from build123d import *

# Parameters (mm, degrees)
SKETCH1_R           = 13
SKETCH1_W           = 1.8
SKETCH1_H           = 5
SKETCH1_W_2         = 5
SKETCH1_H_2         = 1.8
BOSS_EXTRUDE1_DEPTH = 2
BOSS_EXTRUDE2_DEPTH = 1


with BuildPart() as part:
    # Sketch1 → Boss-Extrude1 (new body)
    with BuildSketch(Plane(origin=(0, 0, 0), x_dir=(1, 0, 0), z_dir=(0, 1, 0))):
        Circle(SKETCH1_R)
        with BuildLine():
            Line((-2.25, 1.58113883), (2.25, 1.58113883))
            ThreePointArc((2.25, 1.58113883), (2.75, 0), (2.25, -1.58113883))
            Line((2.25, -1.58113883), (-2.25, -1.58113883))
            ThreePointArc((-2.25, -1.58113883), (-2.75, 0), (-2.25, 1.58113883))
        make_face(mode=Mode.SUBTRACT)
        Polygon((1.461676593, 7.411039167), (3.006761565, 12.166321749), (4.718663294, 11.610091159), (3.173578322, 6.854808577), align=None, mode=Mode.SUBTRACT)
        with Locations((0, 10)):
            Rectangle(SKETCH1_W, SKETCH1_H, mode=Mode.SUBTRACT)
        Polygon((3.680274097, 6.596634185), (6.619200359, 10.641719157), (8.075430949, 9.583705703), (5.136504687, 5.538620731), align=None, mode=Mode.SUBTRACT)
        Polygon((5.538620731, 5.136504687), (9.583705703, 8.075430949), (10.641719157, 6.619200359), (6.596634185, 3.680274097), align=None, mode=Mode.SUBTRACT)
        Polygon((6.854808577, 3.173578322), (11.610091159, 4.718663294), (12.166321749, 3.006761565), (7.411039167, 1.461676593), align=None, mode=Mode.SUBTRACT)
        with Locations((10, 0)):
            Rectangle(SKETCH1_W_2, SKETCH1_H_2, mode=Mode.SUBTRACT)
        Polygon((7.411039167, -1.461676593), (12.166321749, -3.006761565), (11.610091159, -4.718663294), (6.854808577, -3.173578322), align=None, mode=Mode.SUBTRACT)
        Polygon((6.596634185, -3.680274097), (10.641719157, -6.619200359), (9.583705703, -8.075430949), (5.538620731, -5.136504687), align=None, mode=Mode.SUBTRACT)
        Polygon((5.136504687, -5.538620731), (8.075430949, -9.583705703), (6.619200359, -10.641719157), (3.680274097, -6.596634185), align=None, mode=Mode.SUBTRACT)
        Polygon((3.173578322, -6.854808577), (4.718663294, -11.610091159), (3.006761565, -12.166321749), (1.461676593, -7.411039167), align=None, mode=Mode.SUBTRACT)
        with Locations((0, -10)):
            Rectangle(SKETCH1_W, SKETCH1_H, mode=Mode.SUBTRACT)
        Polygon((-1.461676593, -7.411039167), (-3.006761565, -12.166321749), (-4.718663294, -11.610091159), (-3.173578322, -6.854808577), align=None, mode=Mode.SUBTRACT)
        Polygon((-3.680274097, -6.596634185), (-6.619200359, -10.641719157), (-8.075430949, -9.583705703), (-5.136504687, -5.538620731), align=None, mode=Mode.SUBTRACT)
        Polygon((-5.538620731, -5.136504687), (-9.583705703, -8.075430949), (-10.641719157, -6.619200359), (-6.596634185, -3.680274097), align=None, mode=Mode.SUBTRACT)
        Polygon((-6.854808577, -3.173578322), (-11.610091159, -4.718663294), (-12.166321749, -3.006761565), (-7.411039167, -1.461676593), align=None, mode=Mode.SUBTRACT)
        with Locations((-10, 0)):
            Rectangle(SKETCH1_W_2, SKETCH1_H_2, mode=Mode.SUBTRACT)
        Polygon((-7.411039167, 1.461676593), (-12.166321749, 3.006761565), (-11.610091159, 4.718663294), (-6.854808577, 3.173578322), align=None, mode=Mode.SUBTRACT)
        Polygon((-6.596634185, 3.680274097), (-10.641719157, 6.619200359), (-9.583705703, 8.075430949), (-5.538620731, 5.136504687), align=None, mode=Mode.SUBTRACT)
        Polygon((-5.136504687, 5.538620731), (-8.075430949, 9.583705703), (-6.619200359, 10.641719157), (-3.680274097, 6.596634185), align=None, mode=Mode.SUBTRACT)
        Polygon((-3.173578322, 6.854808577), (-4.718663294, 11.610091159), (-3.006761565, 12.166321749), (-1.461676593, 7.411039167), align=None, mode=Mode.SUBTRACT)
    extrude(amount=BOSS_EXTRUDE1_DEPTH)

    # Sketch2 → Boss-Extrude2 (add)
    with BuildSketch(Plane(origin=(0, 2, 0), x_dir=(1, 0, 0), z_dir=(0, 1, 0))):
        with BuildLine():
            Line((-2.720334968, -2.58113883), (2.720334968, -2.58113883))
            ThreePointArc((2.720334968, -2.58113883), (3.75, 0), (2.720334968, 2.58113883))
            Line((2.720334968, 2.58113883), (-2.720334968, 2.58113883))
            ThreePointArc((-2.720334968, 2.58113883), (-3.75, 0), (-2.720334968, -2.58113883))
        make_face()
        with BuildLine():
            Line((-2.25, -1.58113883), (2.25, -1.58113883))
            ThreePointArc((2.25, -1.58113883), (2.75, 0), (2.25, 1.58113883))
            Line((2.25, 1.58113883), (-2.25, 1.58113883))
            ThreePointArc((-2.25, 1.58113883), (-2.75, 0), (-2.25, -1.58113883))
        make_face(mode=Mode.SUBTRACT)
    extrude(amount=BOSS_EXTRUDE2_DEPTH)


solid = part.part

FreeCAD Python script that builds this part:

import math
import FreeCAD as App
import Part
import Sketcher
from FreeCAD import Vector
Q = App.Units.Quantity

doc = App.newDocument("Part")
body = doc.addObject("PartDesign::Body", "Body")

sketch1 = doc.addObject("Sketcher::SketchObject", "Sketch")
body.addObject(sketch1)
sketch1.AttachmentSupport = (doc.XZ_Plane, [""])
sketch1.MapMode = "FlatFace"
sketch1.addGeometry([
    Part.Circle(Vector(0, 0, 0), Vector(0, 0, 1), 13),
    Part.LineSegment(Vector(-3.2, 6.9, 0), Vector(-1.5, 7.4, 0)),
    Part.LineSegment(Vector(-1.5, 7.4, 0), Vector(-3, 12.2, 0)),
    Part.LineSegment(Vector(-3, 12.2, 0), Vector(-4.7, 11.6, 0)),
    Part.LineSegment(Vector(-4.7, 11.6, 0), Vector(-3.2, 6.9, 0)),
    Part.LineSegment(Vector(-5.1, 5.5, 0), Vector(-3.7, 6.6, 0)),
    Part.LineSegment(Vector(-3.7, 6.6, 0), Vector(-6.6, 10.6, 0)),
    Part.LineSegment(Vector(-6.6, 10.6, 0), Vector(-8.1, 9.6, 0)),
    Part.LineSegment(Vector(-8.1, 9.6, 0), Vector(-5.1, 5.5, 0)),
    Part.LineSegment(Vector(-6.6, 3.7, 0), Vector(-5.5, 5.1, 0)),
    Part.LineSegment(Vector(-5.5, 5.1, 0), Vector(-9.6, 8.1, 0)),
    Part.LineSegment(Vector(-9.6, 8.1, 0), Vector(-10.6, 6.6, 0)),
    Part.LineSegment(Vector(-10.6, 6.6, 0), Vector(-6.6, 3.7, 0)),
    Part.LineSegment(Vector(-7.4, 1.5, 0), Vector(-6.9, 3.2, 0)),
    Part.LineSegment(Vector(-6.9, 3.2, 0), Vector(-11.6, 4.7, 0)),
    Part.LineSegment(Vector(-11.6, 4.7, 0), Vector(-12.2, 3, 0)),
    Part.LineSegment(Vector(-12.2, 3, 0), Vector(-7.4, 1.5, 0)),
    Part.LineSegment(Vector(0.9, 12.5, 0), Vector(-0.9, 12.5, 0)),
    Part.LineSegment(Vector(-0.9, 12.5, 0), Vector(-0.9, 7.5, 0)),
    Part.LineSegment(Vector(-0.9, 7.5, 0), Vector(0.9, 7.5, 0)),
    Part.LineSegment(Vector(0.9, 7.5, 0), Vector(0.9, 12.5, 0)),
    Part.LineSegment(Vector(1.5, 7.4, 0), Vector(3.2, 6.9, 0)),
    Part.LineSegment(Vector(3.2, 6.9, 0), Vector(4.7, 11.6, 0)),
    Part.LineSegment(Vector(4.7, 11.6, 0), Vector(3, 12.2, 0)),
    Part.LineSegment(Vector(3, 12.2, 0), Vector(1.5, 7.4, 0)),
    Part.LineSegment(Vector(3.7, 6.6, 0), Vector(5.1, 5.5, 0)),
    Part.LineSegment(Vector(5.1, 5.5, 0), Vector(8.1, 9.6, 0)),
    Part.LineSegment(Vector(8.1, 9.6, 0), Vector(6.6, 10.6, 0)),
    Part.LineSegment(Vector(6.6, 10.6, 0), Vector(3.7, 6.6, 0)),
    Part.LineSegment(Vector(5.5, 5.1, 0), Vector(6.6, 3.7, 0)),
    Part.LineSegment(Vector(6.6, 3.7, 0), Vector(10.6, 6.6, 0)),
    Part.LineSegment(Vector(10.6, 6.6, 0), Vector(9.6, 8.1, 0)),
    Part.LineSegment(Vector(9.6, 8.1, 0), Vector(5.5, 5.1, 0)),
    Part.LineSegment(Vector(6.9, 3.2, 0), Vector(7.4, 1.5, 0)),
    Part.LineSegment(Vector(7.4, 1.5, 0), Vector(12.2, 3, 0)),
    Part.LineSegment(Vector(12.2, 3, 0), Vector(11.6, 4.7, 0)),
    Part.LineSegment(Vector(11.6, 4.7, 0), Vector(6.9, 3.2, 0)),
    Part.LineSegment(Vector(-7.5, 0.9, 0), Vector(-12.5, 0.9, 0)),
    Part.LineSegment(Vector(-12.5, 0.9, 0), Vector(-12.5, -0.9, 0)),
    Part.LineSegment(Vector(-12.5, -0.9, 0), Vector(-7.5, -0.9, 0)),
    Part.LineSegment(Vector(-7.5, -0.9, 0), Vector(-7.5, 0.9, 0)),
    Part.LineSegment(Vector(-6.9, -3.2, 0), Vector(-7.4, -1.5, 0)),
    Part.LineSegment(Vector(-7.4, -1.5, 0), Vector(-12.2, -3, 0)),
    Part.LineSegment(Vector(-12.2, -3, 0), Vector(-11.6, -4.7, 0)),
    Part.LineSegment(Vector(-11.6, -4.7, 0), Vector(-6.9, -3.2, 0)),
    Part.LineSegment(Vector(-5.5, -5.1, 0), Vector(-6.6, -3.7, 0)),
    Part.LineSegment(Vector(-6.6, -3.7, 0), Vector(-10.6, -6.6, 0)),
    Part.LineSegment(Vector(-10.6, -6.6, 0), Vector(-9.6, -8.1, 0)),
    Part.LineSegment(Vector(-9.6, -8.1, 0), Vector(-5.5, -5.1, 0)),
    Part.LineSegment(Vector(-3.7, -6.6, 0), Vector(-5.1, -5.5, 0)),
    Part.LineSegment(Vector(-5.1, -5.5, 0), Vector(-8.1, -9.6, 0)),
    Part.LineSegment(Vector(-8.1, -9.6, 0), Vector(-6.6, -10.6, 0)),
    Part.LineSegment(Vector(-6.6, -10.6, 0), Vector(-3.7, -6.6, 0)),
    Part.LineSegment(Vector(-1.5, -7.4, 0), Vector(-3.2, -6.9, 0)),
    Part.LineSegment(Vector(-3.2, -6.9, 0), Vector(-4.7, -11.6, 0)),
    Part.LineSegment(Vector(-4.7, -11.6, 0), Vector(-3, -12.2, 0)),
    Part.LineSegment(Vector(-3, -12.2, 0), Vector(-1.5, -7.4, 0)),
    Part.ArcOfCircle(Part.Circle(Vector(0, 0, 0), Vector(0, 0, 1), 2.8), math.radians(145), math.radians(215)),
    Part.LineSegment(Vector(-2.2, -1.6, 0), Vector(2.2, -1.6, 0)),
    Part.ArcOfCircle(Part.Circle(Vector(0, 0, 0), Vector(0, 0, 1), 2.8), math.radians(-35), math.radians(35)),
    Part.LineSegment(Vector(2.2, 1.6, 0), Vector(-2.2, 1.6, 0)),
    Part.LineSegment(Vector(12.5, 0.9, 0), Vector(7.5, 0.9, 0)),
    Part.LineSegment(Vector(7.5, 0.9, 0), Vector(7.5, -0.9, 0)),
    Part.LineSegment(Vector(7.5, -0.9, 0), Vector(12.5, -0.9, 0)),
    Part.LineSegment(Vector(12.5, -0.9, 0), Vector(12.5, 0.9, 0)),
    Part.LineSegment(Vector(7.4, -1.5, 0), Vector(6.9, -3.2, 0)),
    Part.LineSegment(Vector(6.9, -3.2, 0), Vector(11.6, -4.7, 0)),
    Part.LineSegment(Vector(11.6, -4.7, 0), Vector(12.2, -3, 0)),
    Part.LineSegment(Vector(12.2, -3, 0), Vector(7.4, -1.5, 0)),
    Part.LineSegment(Vector(6.6, -3.7, 0), Vector(5.5, -5.1, 0)),
    Part.LineSegment(Vector(5.5, -5.1, 0), Vector(9.6, -8.1, 0)),
    Part.LineSegment(Vector(9.6, -8.1, 0), Vector(10.6, -6.6, 0)),
    Part.LineSegment(Vector(10.6, -6.6, 0), Vector(6.6, -3.7, 0)),
    Part.LineSegment(Vector(5.1, -5.5, 0), Vector(3.7, -6.6, 0)),
    Part.LineSegment(Vector(3.7, -6.6, 0), Vector(6.6, -10.6, 0)),
    Part.LineSegment(Vector(6.6, -10.6, 0), Vector(8.1, -9.6, 0)),
    Part.LineSegment(Vector(8.1, -9.6, 0), Vector(5.1, -5.5, 0)),
    Part.LineSegment(Vector(0.9, -7.5, 0), Vector(-0.9, -7.5, 0)),
    Part.LineSegment(Vector(-0.9, -7.5, 0), Vector(-0.9, -12.5, 0)),
    Part.LineSegment(Vector(-0.9, -12.5, 0), Vector(0.9, -12.5, 0)),
    Part.LineSegment(Vector(0.9, -12.5, 0), Vector(0.9, -7.5, 0)),
    Part.LineSegment(Vector(3.2, -6.9, 0), Vector(1.5, -7.4, 0)),
    Part.LineSegment(Vector(1.5, -7.4, 0), Vector(3, -12.2, 0)),
    Part.LineSegment(Vector(3, -12.2, 0), Vector(4.7, -11.6, 0)),
    Part.LineSegment(Vector(4.7, -11.6, 0), Vector(3.2, -6.9, 0)),
], False)
sketch1.addConstraint([
    Sketcher.Constraint("Coincident", 1, 2, 2, 1),
    Sketcher.Constraint("Coincident", 2, 2, 3, 1),
    Sketcher.Constraint("Coincident", 3, 2, 4, 1),
    Sketcher.Constraint("Coincident", 4, 2, 1, 1),
    Sketcher.Constraint("Coincident", 5, 2, 6, 1),
    Sketcher.Constraint("Coincident", 6, 2, 7, 1),
    Sketcher.Constraint("Coincident", 7, 2, 8, 1),
    Sketcher.Constraint("Coincident", 8, 2, 5, 1),
    Sketcher.Constraint("Coincident", 9, 2, 10, 1),
    Sketcher.Constraint("Coincident", 10, 2, 11, 1),
    Sketcher.Constraint("Coincident", 11, 2, 12, 1),
    Sketcher.Constraint("Coincident", 12, 2, 9, 1),
    Sketcher.Constraint("Coincident", 13, 2, 14, 1),
    Sketcher.Constraint("Coincident", 14, 2, 15, 1),
    Sketcher.Constraint("Coincident", 15, 2, 16, 1),
    Sketcher.Constraint("Coincident", 16, 2, 13, 1),
    Sketcher.Constraint("Coincident", 17, 2, 18, 1),
    Sketcher.Constraint("Coincident", 18, 2, 19, 1),
    Sketcher.Constraint("Coincident", 19, 2, 20, 1),
    Sketcher.Constraint("Coincident", 20, 2, 17, 1),
    Sketcher.Constraint("Coincident", 21, 2, 22, 1),
    Sketcher.Constraint("Coincident", 22, 2, 23, 1),
    Sketcher.Constraint("Coincident", 23, 2, 24, 1),
    Sketcher.Constraint("Coincident", 24, 2, 21, 1),
    Sketcher.Constraint("Coincident", 25, 2, 26, 1),
    Sketcher.Constraint("Coincident", 26, 2, 27, 1),
    Sketcher.Constraint("Coincident", 27, 2, 28, 1),
    Sketcher.Constraint("Coincident", 28, 2, 25, 1),
    Sketcher.Constraint("Coincident", 29, 2, 30, 1),
    Sketcher.Constraint("Coincident", 30, 2, 31, 1),
    Sketcher.Constraint("Coincident", 31, 2, 32, 1),
    Sketcher.Constraint("Coincident", 32, 2, 29, 1),
    Sketcher.Constraint("Coincident", 33, 2, 34, 1),
    Sketcher.Constraint("Coincident", 34, 2, 35, 1),
    Sketcher.Constraint("Coincident", 35, 2, 36, 1),
    Sketcher.Constraint("Coincident", 36, 2, 33, 1),
    Sketcher.Constraint("Coincident", 37, 2, 38, 1),
    Sketcher.Constraint("Coincident", 38, 2, 39, 1),
    Sketcher.Constraint("Coincident", 39, 2, 40, 1),
    Sketcher.Constraint("Coincident", 40, 2, 37, 1),
    Sketcher.Constraint("Coincident", 41, 2, 42, 1),
    Sketcher.Constraint("Coincident", 42, 2, 43, 1),
    Sketcher.Constraint("Coincident", 43, 2, 44, 1),
    Sketcher.Constraint("Coincident", 44, 2, 41, 1),
    Sketcher.Constraint("Coincident", 45, 2, 46, 1),
    Sketcher.Constraint("Coincident", 46, 2, 47, 1),
    Sketcher.Constraint("Coincident", 47, 2, 48, 1),
    Sketcher.Constraint("Coincident", 48, 2, 45, 1),
    Sketcher.Constraint("Coincident", 49, 2, 50, 1),
    Sketcher.Constraint("Coincident", 50, 2, 51, 1),
    Sketcher.Constraint("Coincident", 51, 2, 52, 1),
    Sketcher.Constraint("Coincident", 52, 2, 49, 1),
    Sketcher.Constraint("Coincident", 53, 2, 54, 1),
    Sketcher.Constraint("Coincident", 54, 2, 55, 1),
    Sketcher.Constraint("Coincident", 55, 2, 56, 1),
    Sketcher.Constraint("Coincident", 56, 2, 53, 1),
    Sketcher.Constraint("Coincident", 57, 2, 58, 1),
    Sketcher.Constraint("Coincident", 58, 2, 59, 1),
    Sketcher.Constraint("Coincident", 59, 2, 60, 1),
    Sketcher.Constraint("Coincident", 60, 2, 57, 1),
    Sketcher.Constraint("Coincident", 61, 2, 62, 1),
    Sketcher.Constraint("Coincident", 62, 2, 63, 1),
    Sketcher.Constraint("Coincident", 63, 2, 64, 1),
    Sketcher.Constraint("Coincident", 64, 2, 61, 1),
    Sketcher.Constraint("Coincident", 65, 2, 66, 1),
    Sketcher.Constraint("Coincident", 66, 2, 67, 1),
    Sketcher.Constraint("Coincident", 67, 2, 68, 1),
    Sketcher.Constraint("Coincident", 68, 2, 65, 1),
    Sketcher.Constraint("Coincident", 69, 2, 70, 1),
    Sketcher.Constraint("Coincident", 70, 2, 71, 1),
    Sketcher.Constraint("Coincident", 71, 2, 72, 1),
    Sketcher.Constraint("Coincident", 72, 2, 69, 1),
    Sketcher.Constraint("Coincident", 73, 2, 74, 1),
    Sketcher.Constraint("Coincident", 74, 2, 75, 1),
    Sketcher.Constraint("Coincident", 75, 2, 76, 1),
    Sketcher.Constraint("Coincident", 76, 2, 73, 1),
    Sketcher.Constraint("Coincident", 77, 2, 78, 1),
    Sketcher.Constraint("Coincident", 78, 2, 79, 1),
    Sketcher.Constraint("Coincident", 79, 2, 80, 1),
    Sketcher.Constraint("Coincident", 80, 2, 77, 1),
    Sketcher.Constraint("Coincident", 81, 2, 82, 1),
    Sketcher.Constraint("Coincident", 82, 2, 83, 1),
    Sketcher.Constraint("Coincident", 83, 2, 84, 1),
    Sketcher.Constraint("Coincident", 84, 2, 81, 1),
    Sketcher.Constraint("Horizontal", 17),
    Sketcher.Constraint("Vertical", 18),
    Sketcher.Constraint("Horizontal", 19),
    Sketcher.Constraint("Vertical", 20),
    Sketcher.Constraint("Horizontal", 37),
    Sketcher.Constraint("Vertical", 38),
    Sketcher.Constraint("Horizontal", 39),
    Sketcher.Constraint("Vertical", 40),
    Sketcher.Constraint("Horizontal", 58),
    Sketcher.Constraint("Horizontal", 60),
    Sketcher.Constraint("Horizontal", 61),
    Sketcher.Constraint("Vertical", 62),
    Sketcher.Constraint("Horizontal", 63),
    Sketcher.Constraint("Vertical", 64),
    Sketcher.Constraint("Horizontal", 77),
    Sketcher.Constraint("Vertical", 78),
    Sketcher.Constraint("Horizontal", 79),
    Sketcher.Constraint("Vertical", 80),
    Sketcher.Constraint("Coincident", 0, 3, -1, 1),
    Sketcher.Constraint("Coincident", 57, 3, -1, 1),
    Sketcher.Constraint("Coincident", 59, 3, -1, 1),
    Sketcher.Constraint("Equal", 57, 59),
    Sketcher.Constraint("Symmetric", 33, 2, 41, 2, -1, 1),
    Sketcher.Constraint("Symmetric", 34, 2, 42, 2, -1, 1),
    Sketcher.Constraint("Symmetric", 35, 2, 43, 2, -1, 1),
    Sketcher.Constraint("Symmetric", 36, 2, 44, 2, -1, 1),
    Sketcher.Constraint("Symmetric", 29, 2, 45, 2, -1, 1),
    Sketcher.Constraint("Symmetric", 30, 2, 46, 2, -1, 1),
    Sketcher.Constraint("Symmetric", 31, 2, 47, 2, -1, 1),
    Sketcher.Constraint("Symmetric", 32, 2, 48, 2, -1, 1),
    Sketcher.Constraint("Symmetric", 25, 2, 49, 2, -1, 1),
    Sketcher.Constraint("Symmetric", 26, 2, 50, 2, -1, 1),
    Sketcher.Constraint("Symmetric", 27, 2, 51, 2, -1, 1),
    Sketcher.Constraint("Symmetric", 28, 2, 52, 2, -1, 1),
    Sketcher.Constraint("Symmetric", 21, 2, 53, 2, -1, 1),
    Sketcher.Constraint("Symmetric", 22, 2, 54, 2, -1, 1),
    Sketcher.Constraint("Symmetric", 23, 2, 55, 2, -1, 1),
    Sketcher.Constraint("Symmetric", 24, 2, 56, 2, -1, 1),
    Sketcher.Constraint("Symmetric", 39, 2, 61, 2, -1, 1),
    Sketcher.Constraint("Symmetric", 37, 2, 63, 2, -1, 1),
    Sketcher.Constraint("Symmetric", 13, 2, 65, 2, -1, 1),
    Sketcher.Constraint("Symmetric", 14, 2, 66, 2, -1, 1),
    Sketcher.Constraint("Symmetric", 15, 2, 67, 2, -1, 1),
    Sketcher.Constraint("Symmetric", 16, 2, 68, 2, -1, 1),
    Sketcher.Constraint("Symmetric", 9, 2, 69, 2, -1, 1),
    Sketcher.Constraint("Symmetric", 10, 2, 70, 2, -1, 1),
    Sketcher.Constraint("Symmetric", 11, 2, 71, 2, -1, 1),
    Sketcher.Constraint("Symmetric", 12, 2, 72, 2, -1, 1),
    Sketcher.Constraint("Symmetric", 5, 2, 73, 2, -1, 1),
    Sketcher.Constraint("Symmetric", 6, 2, 74, 2, -1, 1),
    Sketcher.Constraint("Symmetric", 7, 2, 75, 2, -1, 1),
    Sketcher.Constraint("Symmetric", 8, 2, 76, 2, -1, 1),
    Sketcher.Constraint("Symmetric", 19, 2, 77, 2, -1, 1),
    Sketcher.Constraint("Symmetric", 17, 2, 79, 2, -1, 1),
    Sketcher.Constraint("Symmetric", 1, 2, 81, 2, -1, 1),
    Sketcher.Constraint("Symmetric", 2, 2, 82, 2, -1, 1),
    Sketcher.Constraint("Symmetric", 3, 2, 83, 2, -1, 1),
    Sketcher.Constraint("Symmetric", 4, 2, 84, 2, -1, 1),
    Sketcher.Constraint("Symmetric", 4, 2, 21, 2, -2),
    Sketcher.Constraint("Symmetric", 3, 2, 22, 2, -2),
    Sketcher.Constraint("Symmetric", 2, 2, 23, 2, -2),
    Sketcher.Constraint("Symmetric", 1, 2, 24, 2, -2),
    Sketcher.Constraint("Symmetric", 8, 2, 25, 2, -2),
    Sketcher.Constraint("Symmetric", 7, 2, 26, 2, -2),
    Sketcher.Constraint("Symmetric", 6, 2, 27, 2, -2),
    Sketcher.Constraint("Symmetric", 5, 2, 28, 2, -2),
    Sketcher.Constraint("Symmetric", 12, 2, 29, 2, -2),
    Sketcher.Constraint("Symmetric", 11, 2, 30, 2, -2),
    Sketcher.Constraint("Symmetric", 10, 2, 31, 2, -2),
    Sketcher.Constraint("Symmetric", 9, 2, 32, 2, -2),
    Sketcher.Constraint("Symmetric", 16, 2, 33, 2, -2),
    Sketcher.Constraint("Symmetric", 15, 2, 34, 2, -2),
    Sketcher.Constraint("Symmetric", 14, 2, 35, 2, -2),
    Sketcher.Constraint("Symmetric", 13, 2, 36, 2, -2),
    Sketcher.Constraint("Perpendicular", 1, 2),
    Sketcher.Constraint("Perpendicular", 2, 3),
    Sketcher.Constraint("Perpendicular", 3, 4),
    Sketcher.Constraint("Perpendicular", 5, 6),
    Sketcher.Constraint("Perpendicular", 6, 7),
    Sketcher.Constraint("Perpendicular", 7, 8),
    Sketcher.Constraint("Perpendicular", 9, 10),
    Sketcher.Constraint("Perpendicular", 10, 11),
    Sketcher.Constraint("Perpendicular", 11, 12),
    Sketcher.Constraint("Perpendicular", 13, 14),
    Sketcher.Constraint("Perpendicular", 14, 15),
    Sketcher.Constraint("Perpendicular", 15, 16),
    Sketcher.Constraint("Parallel", 16, 21),
    Sketcher.Constraint("Parallel", 12, 25),
    Sketcher.Constraint("Horizontal", 40, 2, 61, 2),
    Sketcher.Constraint("Vertical", 58, 2, 59, 2),
    Sketcher.Constraint("Vertical", 18, 2, 77, 2),
    Sketcher.Constraint("Equal", 63, 18),
    Sketcher.Constraint("Equal", 79, 38),
    Sketcher.Constraint("Equal", 3, 5),
    Sketcher.Constraint("Equal", 4, 6),
    Sketcher.Constraint("Equal", 7, 9),
    Sketcher.Constraint("Equal", 8, 10),
    Sketcher.Constraint("Equal", 11, 13),
    Sketcher.Constraint("Equal", 12, 14),
    Sketcher.Constraint("Diameter", 0, Q("26 mm")),
    Sketcher.Constraint("DistanceX", 37, 2, 37, 1, Q("5 mm")),
    Sketcher.Constraint("Angle", 1, Q("18 deg")),
    Sketcher.Constraint("Angle", 5, Q("36 deg")),
    Sketcher.Constraint("Radius", 57, Q("2.75 mm")),
    Sketcher.Constraint("Distance", 2, Q("5 mm")),
    Sketcher.Constraint("DistanceX", 17, 2, 17, 1, Q("1.8 mm")),
    Sketcher.Constraint("DistanceX", 58, 1, 58, 2, Q("4.5 mm")),
    Sketcher.Constraint("Distance", 1, Q("1.8 mm")),
    Sketcher.Constraint("DistanceY", -1, 1, 17, 2, Q("12.5 mm")),
    Sketcher.Constraint("DistanceX", 37, 2, -1, 1, Q("12.5 mm")),
    Sketcher.Constraint("DistanceX", 6, 2, -1, 1, Q("6.6192 mm")),
    Sketcher.Constraint("DistanceY", -1, 1, 11, 2, Q("6.6192 mm")),
    Sketcher.Constraint("DistanceY", -1, 1, 1, 2, Q("7.411039 mm")),
    Sketcher.Constraint("DistanceX", 2, 2, -1, 1, Q("3.006762 mm")),
    Sketcher.Constraint("DistanceY", -1, 1, 6, 2, Q("10.641719 mm")),
    Sketcher.Constraint("DistanceX", 9, 2, -1, 1, Q("5.538621 mm")),
    Sketcher.Constraint("DistanceX", 13, 2, -1, 1, Q("6.854809 mm")),
    Sketcher.Constraint("DistanceY", -1, 1, 13, 2, Q("3.173578 mm")),
])
pad1 = doc.addObject("PartDesign::Pad", "Pad")
body.addObject(pad1)
pad1.Profile = sketch1
pad1.Length = 2
pad1.Reversed = True

sketch2 = doc.addObject("Sketcher::SketchObject", "Sketch001")
body.addObject(sketch2)
sketch2.AttachmentSupport = (doc.XZ_Plane, [""])
sketch2.MapMode = "FlatFace"
sketch2.AttachmentOffset = App.Placement(Vector(0, 0, -2), App.Rotation())
sketch2.addGeometry([
    Part.LineSegment(Vector(-2.7, 2.6, 0), Vector(2.7, 2.6, 0)),
    Part.ArcOfCircle(Part.Circle(Vector(0, 0, 0), Vector(0, 0, 1), 3.7), math.radians(-43), math.radians(43)),
    Part.LineSegment(Vector(2.7, -2.6, 0), Vector(-2.7, -2.6, 0)),
    Part.ArcOfCircle(Part.Circle(Vector(0, 0, 0), Vector(0, 0, 1), 3.7), math.radians(137), math.radians(223)),
    Part.LineSegment(Vector(2.2, 1.6, 0), Vector(-2.2, 1.6, 0)),
    Part.ArcOfCircle(Part.Circle(Vector(0, 0, 0), Vector(0, 0, 1), 2.8), math.radians(145), math.radians(215)),
    Part.LineSegment(Vector(-2.2, -1.6, 0), Vector(2.2, -1.6, 0)),
    Part.ArcOfCircle(Part.Circle(Vector(0, 0, 0), Vector(0, 0, 1), 2.8), math.radians(-35), math.radians(35)),
], False)
sketch2.addConstraint([
    Sketcher.Constraint("Coincident", 0, 2, 1, 2),
    Sketcher.Constraint("Coincident", 1, 1, 2, 1),
    Sketcher.Constraint("Coincident", 2, 2, 3, 2),
    Sketcher.Constraint("Coincident", 3, 1, 0, 1),
    Sketcher.Constraint("Coincident", 4, 2, 5, 1),
    Sketcher.Constraint("Coincident", 5, 2, 6, 1),
    Sketcher.Constraint("Coincident", 6, 2, 7, 1),
    Sketcher.Constraint("Coincident", 7, 2, 4, 1),
    Sketcher.Constraint("Horizontal", 0),
    Sketcher.Constraint("Horizontal", 2),
    Sketcher.Constraint("Horizontal", 4),
    Sketcher.Constraint("Horizontal", 6),
    Sketcher.Constraint("Coincident", 1, 3, -1, 1),
    Sketcher.Constraint("Coincident", 3, 3, -1, 1),
    Sketcher.Constraint("Coincident", 5, 3, -1, 1),
    Sketcher.Constraint("Coincident", 7, 3, -1, 1),
    Sketcher.Constraint("Equal", 1, 3),
    Sketcher.Constraint("Equal", 5, 7),
    Sketcher.Constraint("Vertical", 0, 2, 1, 1),
    Sketcher.Constraint("Vertical", 4, 2, 5, 2),
    Sketcher.Constraint("Radius", 1, Q("3.75 mm")),
    Sketcher.Constraint("Radius", 5, Q("2.75 mm")),
    Sketcher.Constraint("DistanceX", 4, 2, 4, 1, Q("4.5 mm")),
    Sketcher.Constraint("DistanceY", 4, 2, 3, 1, Q("1 mm")),
])
pad2 = doc.addObject("PartDesign::Pad", "Pad001")
body.addObject(pad2)
pad2.Profile = sketch2
pad2.Length = 1
pad2.Reversed = True

doc.recompute()
